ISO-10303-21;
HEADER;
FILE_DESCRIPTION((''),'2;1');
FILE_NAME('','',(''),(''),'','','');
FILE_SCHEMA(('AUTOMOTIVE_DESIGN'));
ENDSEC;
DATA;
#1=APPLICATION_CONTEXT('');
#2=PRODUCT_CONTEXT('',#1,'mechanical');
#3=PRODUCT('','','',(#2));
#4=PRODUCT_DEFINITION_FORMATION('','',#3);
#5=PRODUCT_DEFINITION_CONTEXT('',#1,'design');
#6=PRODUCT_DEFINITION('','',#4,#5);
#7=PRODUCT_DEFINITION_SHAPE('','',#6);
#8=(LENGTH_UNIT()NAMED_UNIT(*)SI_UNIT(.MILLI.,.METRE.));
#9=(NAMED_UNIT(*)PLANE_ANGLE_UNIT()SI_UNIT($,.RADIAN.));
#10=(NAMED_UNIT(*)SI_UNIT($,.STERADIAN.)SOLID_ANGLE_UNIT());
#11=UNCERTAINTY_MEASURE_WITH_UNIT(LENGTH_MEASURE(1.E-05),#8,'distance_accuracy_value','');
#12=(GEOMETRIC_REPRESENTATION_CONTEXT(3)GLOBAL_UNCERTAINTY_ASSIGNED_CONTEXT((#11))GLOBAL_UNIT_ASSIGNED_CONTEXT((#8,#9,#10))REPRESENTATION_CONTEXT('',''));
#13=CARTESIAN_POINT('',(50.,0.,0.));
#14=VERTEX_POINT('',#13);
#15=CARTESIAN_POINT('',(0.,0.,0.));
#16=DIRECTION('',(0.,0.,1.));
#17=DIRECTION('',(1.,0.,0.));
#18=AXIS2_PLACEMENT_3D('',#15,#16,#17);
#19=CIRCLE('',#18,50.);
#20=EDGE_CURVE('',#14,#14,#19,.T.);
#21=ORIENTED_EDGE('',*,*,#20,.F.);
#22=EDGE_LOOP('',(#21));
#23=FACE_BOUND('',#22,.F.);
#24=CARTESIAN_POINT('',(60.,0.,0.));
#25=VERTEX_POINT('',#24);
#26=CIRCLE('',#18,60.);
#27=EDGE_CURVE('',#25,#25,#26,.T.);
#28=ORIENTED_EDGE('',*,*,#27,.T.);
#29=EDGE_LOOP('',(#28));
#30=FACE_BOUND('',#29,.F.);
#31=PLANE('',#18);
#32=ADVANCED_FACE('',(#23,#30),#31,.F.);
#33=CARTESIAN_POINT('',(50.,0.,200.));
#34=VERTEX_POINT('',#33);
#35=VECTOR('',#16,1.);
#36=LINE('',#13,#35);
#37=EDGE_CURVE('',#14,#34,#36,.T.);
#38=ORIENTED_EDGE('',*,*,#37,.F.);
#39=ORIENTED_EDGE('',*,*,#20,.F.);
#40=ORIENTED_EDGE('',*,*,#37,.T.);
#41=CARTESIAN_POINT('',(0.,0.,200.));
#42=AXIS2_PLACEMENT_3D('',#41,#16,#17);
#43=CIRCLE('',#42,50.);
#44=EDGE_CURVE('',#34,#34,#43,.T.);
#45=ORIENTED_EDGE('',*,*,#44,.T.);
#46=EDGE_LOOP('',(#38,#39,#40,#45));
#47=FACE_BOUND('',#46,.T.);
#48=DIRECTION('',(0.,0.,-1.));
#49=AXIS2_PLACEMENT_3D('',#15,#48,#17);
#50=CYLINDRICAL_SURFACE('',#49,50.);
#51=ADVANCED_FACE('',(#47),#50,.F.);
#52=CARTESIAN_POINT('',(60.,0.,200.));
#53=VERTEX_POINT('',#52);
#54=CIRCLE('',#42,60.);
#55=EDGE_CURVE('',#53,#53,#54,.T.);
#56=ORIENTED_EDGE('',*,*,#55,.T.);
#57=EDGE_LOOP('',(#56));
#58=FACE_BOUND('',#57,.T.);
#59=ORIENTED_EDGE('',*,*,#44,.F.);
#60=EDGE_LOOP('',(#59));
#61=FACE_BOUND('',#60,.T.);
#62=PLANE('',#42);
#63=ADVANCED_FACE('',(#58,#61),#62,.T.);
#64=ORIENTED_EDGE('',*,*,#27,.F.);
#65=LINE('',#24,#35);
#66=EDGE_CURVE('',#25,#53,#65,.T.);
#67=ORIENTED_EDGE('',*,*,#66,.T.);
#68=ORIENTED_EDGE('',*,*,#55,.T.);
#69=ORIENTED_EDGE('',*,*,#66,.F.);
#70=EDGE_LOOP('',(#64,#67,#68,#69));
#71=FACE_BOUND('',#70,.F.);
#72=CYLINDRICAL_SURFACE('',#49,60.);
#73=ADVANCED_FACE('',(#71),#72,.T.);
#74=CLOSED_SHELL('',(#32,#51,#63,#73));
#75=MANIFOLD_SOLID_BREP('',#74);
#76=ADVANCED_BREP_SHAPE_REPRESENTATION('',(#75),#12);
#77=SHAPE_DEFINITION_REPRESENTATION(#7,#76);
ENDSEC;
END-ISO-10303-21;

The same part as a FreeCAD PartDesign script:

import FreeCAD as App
import Part
import Sketcher
from FreeCAD import Vector

doc = App.newDocument("Part")
body = doc.addObject("PartDesign::Body", "Body")

# Sketch on XY plane
sketch1 = doc.addObject("Sketcher::SketchObject", "Sketch")
body.addObject(sketch1)
sketch1.AttachmentSupport = (doc.XY_Plane, [""])
sketch1.MapMode = "FlatFace"
sketch1.addGeometry(Part.Circle(Vector(0, 0, 0), Vector(0, 0, 1), 60), False)
sketch1.addGeometry(Part.Circle(Vector(0, 0, 0), Vector(0, 0, 1), 50), False)
sketch1.addConstraint(Sketcher.Constraint("Coincident", 0, 3, -1, 1))
sketch1.addConstraint(Sketcher.Constraint("Coincident", 1, 3, -1, 1))
sketch1.addConstraint(Sketcher.Constraint("Diameter", 0, 120.0))
sketch1.addConstraint(Sketcher.Constraint("Diameter", 1, 100.0))
pad1 = doc.addObject("PartDesign::Pad", "Pad")
body.addObject(pad1)
pad1.Profile = sketch1
pad1.Length = 200

doc.recompute()
